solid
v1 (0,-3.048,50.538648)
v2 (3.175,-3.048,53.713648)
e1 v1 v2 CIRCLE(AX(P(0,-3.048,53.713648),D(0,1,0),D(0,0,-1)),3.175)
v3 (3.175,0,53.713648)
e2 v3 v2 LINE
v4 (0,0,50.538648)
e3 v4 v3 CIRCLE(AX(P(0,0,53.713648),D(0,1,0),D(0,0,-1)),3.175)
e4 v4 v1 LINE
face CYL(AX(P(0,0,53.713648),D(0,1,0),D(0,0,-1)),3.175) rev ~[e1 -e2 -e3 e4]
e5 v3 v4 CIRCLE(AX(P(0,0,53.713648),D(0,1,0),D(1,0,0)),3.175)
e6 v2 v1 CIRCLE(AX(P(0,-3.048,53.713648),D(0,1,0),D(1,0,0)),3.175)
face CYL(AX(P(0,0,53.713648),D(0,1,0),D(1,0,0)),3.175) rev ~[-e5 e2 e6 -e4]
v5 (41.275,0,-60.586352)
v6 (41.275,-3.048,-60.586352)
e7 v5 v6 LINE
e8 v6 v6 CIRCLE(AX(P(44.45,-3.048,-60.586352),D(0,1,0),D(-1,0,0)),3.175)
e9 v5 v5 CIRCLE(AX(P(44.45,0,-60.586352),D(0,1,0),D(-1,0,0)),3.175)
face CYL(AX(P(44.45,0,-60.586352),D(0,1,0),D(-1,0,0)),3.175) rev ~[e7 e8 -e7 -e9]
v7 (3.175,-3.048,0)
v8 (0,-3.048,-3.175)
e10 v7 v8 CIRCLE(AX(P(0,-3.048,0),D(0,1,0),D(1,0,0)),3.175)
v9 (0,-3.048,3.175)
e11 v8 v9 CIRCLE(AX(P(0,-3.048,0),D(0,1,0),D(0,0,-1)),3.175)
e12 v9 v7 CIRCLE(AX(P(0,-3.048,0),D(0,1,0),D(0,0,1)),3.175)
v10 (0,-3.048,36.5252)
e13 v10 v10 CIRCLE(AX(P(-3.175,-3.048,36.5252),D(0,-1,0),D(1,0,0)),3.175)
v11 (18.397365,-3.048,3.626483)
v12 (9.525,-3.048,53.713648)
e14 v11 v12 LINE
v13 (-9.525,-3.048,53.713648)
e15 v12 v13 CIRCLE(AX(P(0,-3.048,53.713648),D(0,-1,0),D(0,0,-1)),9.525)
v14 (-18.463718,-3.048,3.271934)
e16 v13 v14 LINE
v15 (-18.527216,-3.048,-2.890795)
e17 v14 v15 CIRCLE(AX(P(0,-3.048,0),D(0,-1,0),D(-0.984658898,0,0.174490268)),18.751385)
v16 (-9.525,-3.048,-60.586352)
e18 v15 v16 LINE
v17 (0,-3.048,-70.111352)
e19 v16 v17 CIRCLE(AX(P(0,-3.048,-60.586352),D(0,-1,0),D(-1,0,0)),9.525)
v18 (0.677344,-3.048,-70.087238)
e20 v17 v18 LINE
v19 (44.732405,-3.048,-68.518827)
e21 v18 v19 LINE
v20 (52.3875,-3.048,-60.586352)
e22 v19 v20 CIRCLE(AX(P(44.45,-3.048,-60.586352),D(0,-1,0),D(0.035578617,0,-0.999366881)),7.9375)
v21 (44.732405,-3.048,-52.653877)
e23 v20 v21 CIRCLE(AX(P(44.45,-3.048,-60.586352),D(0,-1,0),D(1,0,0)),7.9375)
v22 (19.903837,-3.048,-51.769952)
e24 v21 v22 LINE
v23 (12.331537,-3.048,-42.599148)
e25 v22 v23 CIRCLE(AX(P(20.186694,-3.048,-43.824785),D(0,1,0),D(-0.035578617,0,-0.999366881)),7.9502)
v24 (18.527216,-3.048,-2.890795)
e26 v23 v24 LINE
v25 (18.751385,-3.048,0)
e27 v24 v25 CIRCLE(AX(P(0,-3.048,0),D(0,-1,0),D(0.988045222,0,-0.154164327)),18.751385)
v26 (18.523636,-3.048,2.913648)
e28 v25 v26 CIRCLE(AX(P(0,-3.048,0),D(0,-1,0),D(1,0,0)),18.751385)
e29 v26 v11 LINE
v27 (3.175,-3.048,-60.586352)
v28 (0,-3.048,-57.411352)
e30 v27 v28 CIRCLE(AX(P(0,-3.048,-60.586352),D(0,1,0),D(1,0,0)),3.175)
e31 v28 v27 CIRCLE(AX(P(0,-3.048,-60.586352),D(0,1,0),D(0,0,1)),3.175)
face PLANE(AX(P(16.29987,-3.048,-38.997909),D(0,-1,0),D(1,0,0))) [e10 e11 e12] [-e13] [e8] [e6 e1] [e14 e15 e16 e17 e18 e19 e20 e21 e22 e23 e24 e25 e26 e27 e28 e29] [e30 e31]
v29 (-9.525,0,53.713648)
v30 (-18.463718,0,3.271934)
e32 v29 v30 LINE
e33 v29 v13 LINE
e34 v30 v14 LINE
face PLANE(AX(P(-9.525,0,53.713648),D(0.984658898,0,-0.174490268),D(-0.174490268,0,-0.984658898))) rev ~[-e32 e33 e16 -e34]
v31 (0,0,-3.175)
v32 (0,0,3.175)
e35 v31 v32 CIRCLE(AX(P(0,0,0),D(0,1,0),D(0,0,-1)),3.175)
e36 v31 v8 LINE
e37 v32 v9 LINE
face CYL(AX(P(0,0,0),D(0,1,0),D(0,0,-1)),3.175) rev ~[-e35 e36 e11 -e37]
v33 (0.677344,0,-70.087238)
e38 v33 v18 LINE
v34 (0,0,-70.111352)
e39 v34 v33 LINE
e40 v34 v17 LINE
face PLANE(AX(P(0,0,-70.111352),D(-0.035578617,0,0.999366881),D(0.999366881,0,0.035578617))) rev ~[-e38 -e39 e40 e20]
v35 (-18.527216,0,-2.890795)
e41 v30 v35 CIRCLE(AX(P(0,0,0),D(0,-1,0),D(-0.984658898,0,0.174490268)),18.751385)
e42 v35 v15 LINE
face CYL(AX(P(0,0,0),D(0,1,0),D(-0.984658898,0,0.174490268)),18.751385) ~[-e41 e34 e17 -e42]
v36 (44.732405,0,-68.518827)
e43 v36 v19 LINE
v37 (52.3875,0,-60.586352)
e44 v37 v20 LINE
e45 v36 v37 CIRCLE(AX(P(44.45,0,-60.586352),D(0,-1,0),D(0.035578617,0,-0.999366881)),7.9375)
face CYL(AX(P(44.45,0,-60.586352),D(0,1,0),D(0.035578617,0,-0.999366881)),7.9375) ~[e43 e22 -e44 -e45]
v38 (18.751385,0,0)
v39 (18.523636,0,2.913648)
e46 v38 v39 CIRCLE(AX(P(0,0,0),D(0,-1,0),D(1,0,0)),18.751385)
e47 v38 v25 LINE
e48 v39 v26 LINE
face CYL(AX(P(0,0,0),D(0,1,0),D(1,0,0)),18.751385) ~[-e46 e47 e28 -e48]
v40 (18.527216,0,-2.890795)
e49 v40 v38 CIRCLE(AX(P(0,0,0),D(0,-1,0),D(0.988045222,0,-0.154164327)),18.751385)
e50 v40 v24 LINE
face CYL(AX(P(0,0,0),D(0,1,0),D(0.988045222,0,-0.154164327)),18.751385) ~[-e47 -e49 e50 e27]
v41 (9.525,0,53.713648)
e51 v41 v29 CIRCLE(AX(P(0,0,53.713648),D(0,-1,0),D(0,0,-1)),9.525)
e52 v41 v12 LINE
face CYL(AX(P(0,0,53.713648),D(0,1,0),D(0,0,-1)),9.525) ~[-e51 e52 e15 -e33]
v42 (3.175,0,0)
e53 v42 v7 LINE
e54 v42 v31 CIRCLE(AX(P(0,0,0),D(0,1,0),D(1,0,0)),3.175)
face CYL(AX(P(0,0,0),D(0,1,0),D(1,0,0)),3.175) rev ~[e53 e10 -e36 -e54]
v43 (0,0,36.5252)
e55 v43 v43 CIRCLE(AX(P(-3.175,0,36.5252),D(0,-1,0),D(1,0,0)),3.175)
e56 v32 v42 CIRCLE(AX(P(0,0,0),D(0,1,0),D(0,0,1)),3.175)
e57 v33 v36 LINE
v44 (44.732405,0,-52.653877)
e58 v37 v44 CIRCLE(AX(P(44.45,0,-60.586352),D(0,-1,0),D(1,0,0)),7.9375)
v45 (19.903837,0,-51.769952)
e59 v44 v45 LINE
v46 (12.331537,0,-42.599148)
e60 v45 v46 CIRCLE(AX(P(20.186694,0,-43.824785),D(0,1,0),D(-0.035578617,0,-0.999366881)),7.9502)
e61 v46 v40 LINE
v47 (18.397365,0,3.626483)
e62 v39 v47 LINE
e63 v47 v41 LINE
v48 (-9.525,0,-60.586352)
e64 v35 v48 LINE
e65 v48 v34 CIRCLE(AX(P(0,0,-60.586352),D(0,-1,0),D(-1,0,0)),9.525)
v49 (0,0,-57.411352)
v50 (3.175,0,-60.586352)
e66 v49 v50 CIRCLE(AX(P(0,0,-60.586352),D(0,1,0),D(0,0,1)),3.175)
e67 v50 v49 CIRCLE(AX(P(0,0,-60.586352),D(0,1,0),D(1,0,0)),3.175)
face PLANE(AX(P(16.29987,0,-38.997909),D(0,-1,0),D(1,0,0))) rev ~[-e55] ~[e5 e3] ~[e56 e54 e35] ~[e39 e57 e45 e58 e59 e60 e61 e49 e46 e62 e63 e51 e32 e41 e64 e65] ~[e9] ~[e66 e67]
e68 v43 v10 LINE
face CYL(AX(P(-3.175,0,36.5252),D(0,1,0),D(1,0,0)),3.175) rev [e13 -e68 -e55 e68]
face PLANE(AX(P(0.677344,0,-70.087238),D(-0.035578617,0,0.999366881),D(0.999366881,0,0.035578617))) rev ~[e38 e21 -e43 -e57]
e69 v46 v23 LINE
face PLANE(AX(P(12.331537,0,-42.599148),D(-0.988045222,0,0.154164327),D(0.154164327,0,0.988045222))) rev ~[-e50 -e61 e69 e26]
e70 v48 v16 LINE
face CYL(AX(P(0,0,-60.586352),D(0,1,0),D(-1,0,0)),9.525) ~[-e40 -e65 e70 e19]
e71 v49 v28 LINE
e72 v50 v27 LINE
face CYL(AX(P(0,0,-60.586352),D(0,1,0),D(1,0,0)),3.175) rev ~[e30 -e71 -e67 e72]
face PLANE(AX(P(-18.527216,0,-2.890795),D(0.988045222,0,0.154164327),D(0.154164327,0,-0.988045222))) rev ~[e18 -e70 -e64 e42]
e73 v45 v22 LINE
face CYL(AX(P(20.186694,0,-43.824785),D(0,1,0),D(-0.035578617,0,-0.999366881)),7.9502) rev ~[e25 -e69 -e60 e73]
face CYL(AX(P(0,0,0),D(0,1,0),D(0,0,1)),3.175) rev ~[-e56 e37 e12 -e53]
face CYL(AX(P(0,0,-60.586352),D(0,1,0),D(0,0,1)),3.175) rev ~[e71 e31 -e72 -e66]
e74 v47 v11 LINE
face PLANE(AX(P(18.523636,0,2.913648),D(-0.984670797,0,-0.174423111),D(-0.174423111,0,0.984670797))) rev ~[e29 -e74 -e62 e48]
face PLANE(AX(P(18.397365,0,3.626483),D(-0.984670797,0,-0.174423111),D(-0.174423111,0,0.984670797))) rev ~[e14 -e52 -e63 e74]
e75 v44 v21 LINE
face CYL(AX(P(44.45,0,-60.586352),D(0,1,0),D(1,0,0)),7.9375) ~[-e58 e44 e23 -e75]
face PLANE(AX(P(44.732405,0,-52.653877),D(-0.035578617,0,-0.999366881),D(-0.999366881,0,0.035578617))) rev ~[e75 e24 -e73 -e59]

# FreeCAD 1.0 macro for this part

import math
import FreeCAD as App
import Part
import Sketcher
from FreeCAD import Vector
Q = App.Units.Quantity

doc = App.newDocument("Part")
body = doc.addObject("PartDesign::Body", "Body")

sketch1 = body.newObject("Sketcher::SketchObject", "Sketch")
sketch1.AttachmentSupport = (doc.getObject("XZ_Plane"), [""])
sketch1.MapMode = "FlatFace"
sketch1.addGeometry([
    Part.ArcOfCircle(Part.Circle(Vector(0, 0, 0), Vector(0, 0, 1), 18.8), math.radians(169.95), math.radians(188.87)),
    Part.LineSegment(Vector(-18.5, -2.9, 0), Vector(-9.5, -60.6, 0)),
    Part.ArcOfCircle(Part.Circle(Vector(0, -60.6, 0), Vector(0, 0, 1), 9.5), math.radians(180), math.radians(270)),
    Part.LineSegment(Vector(0, -70.1, 0), Vector(0.7, -70.1, 0)),
    Part.LineSegment(Vector(0.7, -70.1, 0), Vector(44.7, -68.5, 0)),
    Part.ArcOfCircle(Part.Circle(Vector(44.5, -60.6, 0), Vector(0, 0, 1), 7.9), math.radians(-88), math.radians(0)),
    Part.ArcOfCircle(Part.Circle(Vector(44.5, -60.6, 0), Vector(0, 0, 1), 7.9), math.radians(0), math.radians(88)),
    Part.LineSegment(Vector(44.7, -52.7, 0), Vector(19.9, -51.8, 0)),
    Part.ArcOfCircle(Part.Circle(Vector(20.2, -43.8, 0), Vector(0, 0, 1), 8), math.radians(171), math.radians(268)),
    Part.LineSegment(Vector(12.3, -42.6, 0), Vector(18.5, -2.9, 0)),
    Part.ArcOfCircle(Part.Circle(Vector(0, 0, 0), Vector(0, 0, 1), 18.8), math.radians(-8.87), math.radians(0)),
    Part.ArcOfCircle(Part.Circle(Vector(0, 0, 0), Vector(0, 0, 1), 18.8), math.radians(0), math.radians(8.94)),
    Part.LineSegment(Vector(18.5, 2.9, 0), Vector(18.4, 3.6, 0)),
    Part.LineSegment(Vector(18.4, 3.6, 0), Vector(9.5, 53.7, 0)),
    Part.ArcOfCircle(Part.Circle(Vector(0, 53.7, 0), Vector(0, 0, 1), 9.5), math.radians(0), math.radians(180)),
    Part.LineSegment(Vector(-9.5, 53.7, 0), Vector(-18.5, 3.3, 0)),
    Part.ArcOfCircle(Part.Circle(Vector(0, -60.6, 0), Vector(0, 0, 1), 3.2), math.radians(90), math.radians(360)),
    Part.ArcOfCircle(Part.Circle(Vector(0, -60.6, 0), Vector(0, 0, 1), 3.2), math.radians(0), math.radians(90)),
    Part.Circle(Vector(44.5, -60.6, 0), Vector(0, 0, 1), 3.2),
    Part.ArcOfCircle(Part.Circle(Vector(0, 0, 0), Vector(0, 0, 1), 3.2), math.radians(0), math.radians(90)),
    Part.ArcOfCircle(Part.Circle(Vector(0, 0, 0), Vector(0, 0, 1), 3.2), math.radians(-90), math.radians(0)),
    Part.ArcOfCircle(Part.Circle(Vector(0, 0, 0), Vector(0, 0, 1), 3.2), math.radians(90), math.radians(270)),
    Part.Circle(Vector(-3.2, 36.5, 0), Vector(0, 0, 1), 3.2),
    Part.ArcOfCircle(Part.Circle(Vector(0, 53.7, 0), Vector(0, 0, 1), 3.2), math.radians(0), math.radians(270)),
    Part.ArcOfCircle(Part.Circle(Vector(0, 53.7, 0), Vector(0, 0, 1), 3.2), math.radians(-90), math.radians(0)),
], False)
sketch1.addConstraint([
    Sketcher.Constraint("Tangent", 0, 2, 1, 1),
    Sketcher.Constraint("Coincident", 1, 2, 2, 1),
    Sketcher.Constraint("Coincident", 2, 2, 3, 1),
    Sketcher.Constraint("Coincident", 3, 2, 4, 1),
    Sketcher.Constraint("Tangent", 4, 2, 5, 1),
    Sketcher.Constraint("Tangent", 5, 2, 6, 1),
    Sketcher.Constraint("Tangent", 6, 2, 7, 1),
    Sketcher.Constraint("Tangent", 7, 2, 8, 2),
    Sketcher.Constraint("Tangent", 8, 1, 9, 1),
    Sketcher.Constraint("Tangent", 9, 2, 10, 1),
    Sketcher.Constraint("Tangent", 10, 2, 11, 1),
    Sketcher.Constraint("Coincident", 11, 2, 12, 1),
    Sketcher.Constraint("Coincident", 12, 2, 13, 1),
    Sketcher.Constraint("Coincident", 13, 2, 14, 1),
    Sketcher.Constraint("Coincident", 14, 2, 15, 1),
    Sketcher.Constraint("Tangent", 15, 2, 0, 1),
    Sketcher.Constraint("Tangent", 16, 1, 17, 2),
    Sketcher.Constraint("Coincident", 17, 1, 16, 2),
    Sketcher.Constraint("Tangent", 19, 1, 20, 2),
    Sketcher.Constraint("Tangent", 20, 1, 21, 2),
    Sketcher.Constraint("Tangent", 21, 1, 19, 2),
    Sketcher.Constraint("Tangent", 23, 1, 24, 2),
    Sketcher.Constraint("Coincident", 24, 1, 23, 2),
    Sketcher.Constraint("Coincident", 0, 3, -1, 1),
    Sketcher.Constraint("Coincident", 10, 3, -1, 1),
    Sketcher.Constraint("Coincident", 19, 3, -1, 1),
    Sketcher.Constraint("Coincident", 16, 3, 2, 3),
    Sketcher.Constraint("Coincident", 18, 3, 5, 3),
    Sketcher.Constraint("Coincident", 23, 3, 14, 3),
    Sketcher.Constraint("Equal", 5, 6),
    Sketcher.Constraint("Equal", 0, 10),
    Sketcher.Constraint("Equal", 10, 11),
    Sketcher.Constraint("Equal", 2, 14),
    Sketcher.Constraint("Equal", 17, 18),
    Sketcher.Constraint("Equal", 18, 19),
    Sketcher.Constraint("Equal", 21, 22),
    Sketcher.Constraint("Equal", 22, 23),
    Sketcher.Constraint("Symmetric", 13, 2, 14, 2, -2),
    Sketcher.Constraint("PointOnObject", 2, 3, -2),
    Sketcher.Constraint("PointOnObject", 2, 2, -2),
    Sketcher.Constraint("PointOnObject", 10, 2, -1),
    Sketcher.Constraint("PointOnObject", 16, 1, -2),
    Sketcher.Constraint("PointOnObject", 19, 1, -1),
    Sketcher.Constraint("PointOnObject", 20, 1, -2),
    Sketcher.Constraint("PointOnObject", 21, 1, -2),
    Sketcher.Constraint("PointOnObject", 24, 1, -2),
    Sketcher.Constraint("Parallel", 3, 4),
    Sketcher.Constraint("Parallel", 12, 13),
    Sketcher.Constraint("Horizontal", 2, 3, 5, 3),
    Sketcher.Constraint("Horizontal", 18, 3, 1, 2),
    Sketcher.Constraint("Horizontal", 1, 2, 5, 2),
    Sketcher.Constraint("Horizontal", 0, 2, 9, 2),
    Sketcher.Constraint("Horizontal", 24, 3, 13, 2),
    Sketcher.Constraint("Horizontal", 5, 2, 17, 1),
    Sketcher.Constraint("Horizontal", 14, 2, 23, 1),
    Sketcher.Constraint("Vertical", 4, 2, 6, 2),
    Sketcher.Constraint("Diameter", 18, Q("0.25 in")),
    Sketcher.Constraint("Radius", 2, Q("0.375 in")),
    Sketcher.Constraint("Radius", 5, Q("0.3125 in")),
    Sketcher.Constraint("Radius", 8, Q("0.313 in")),
    Sketcher.Constraint("DistanceY", 2, 3, 14, 3, Q("4.5 in")),
    Sketcher.Constraint("DistanceX", 22, 3, 13, 2, Q("0.5 in")),
    Sketcher.Constraint("DistanceX", -1, 1, 5, 3, Q("1.75 in")),
    Sketcher.Constraint("DistanceY", -1, 1, 22, 3, Q("1.438 in")),
    Sketcher.Constraint("Radius", 0, 18.751385),
    Sketcher.Constraint("Distance", 9, 40.188801),
    Sketcher.Constraint("Distance", 4, 44.082972),
    Sketcher.Constraint("DistanceY", -1, 1, 11, 2, 2.913648),
    Sketcher.Constraint("DistanceX", 12, 2, 11, 2, 0.12627),
])
pad1 = body.newObject("PartDesign::Pad", "Pad")
pad1.Profile = sketch1
pad1.Length = Q("0.12 in")

doc.recompute()
